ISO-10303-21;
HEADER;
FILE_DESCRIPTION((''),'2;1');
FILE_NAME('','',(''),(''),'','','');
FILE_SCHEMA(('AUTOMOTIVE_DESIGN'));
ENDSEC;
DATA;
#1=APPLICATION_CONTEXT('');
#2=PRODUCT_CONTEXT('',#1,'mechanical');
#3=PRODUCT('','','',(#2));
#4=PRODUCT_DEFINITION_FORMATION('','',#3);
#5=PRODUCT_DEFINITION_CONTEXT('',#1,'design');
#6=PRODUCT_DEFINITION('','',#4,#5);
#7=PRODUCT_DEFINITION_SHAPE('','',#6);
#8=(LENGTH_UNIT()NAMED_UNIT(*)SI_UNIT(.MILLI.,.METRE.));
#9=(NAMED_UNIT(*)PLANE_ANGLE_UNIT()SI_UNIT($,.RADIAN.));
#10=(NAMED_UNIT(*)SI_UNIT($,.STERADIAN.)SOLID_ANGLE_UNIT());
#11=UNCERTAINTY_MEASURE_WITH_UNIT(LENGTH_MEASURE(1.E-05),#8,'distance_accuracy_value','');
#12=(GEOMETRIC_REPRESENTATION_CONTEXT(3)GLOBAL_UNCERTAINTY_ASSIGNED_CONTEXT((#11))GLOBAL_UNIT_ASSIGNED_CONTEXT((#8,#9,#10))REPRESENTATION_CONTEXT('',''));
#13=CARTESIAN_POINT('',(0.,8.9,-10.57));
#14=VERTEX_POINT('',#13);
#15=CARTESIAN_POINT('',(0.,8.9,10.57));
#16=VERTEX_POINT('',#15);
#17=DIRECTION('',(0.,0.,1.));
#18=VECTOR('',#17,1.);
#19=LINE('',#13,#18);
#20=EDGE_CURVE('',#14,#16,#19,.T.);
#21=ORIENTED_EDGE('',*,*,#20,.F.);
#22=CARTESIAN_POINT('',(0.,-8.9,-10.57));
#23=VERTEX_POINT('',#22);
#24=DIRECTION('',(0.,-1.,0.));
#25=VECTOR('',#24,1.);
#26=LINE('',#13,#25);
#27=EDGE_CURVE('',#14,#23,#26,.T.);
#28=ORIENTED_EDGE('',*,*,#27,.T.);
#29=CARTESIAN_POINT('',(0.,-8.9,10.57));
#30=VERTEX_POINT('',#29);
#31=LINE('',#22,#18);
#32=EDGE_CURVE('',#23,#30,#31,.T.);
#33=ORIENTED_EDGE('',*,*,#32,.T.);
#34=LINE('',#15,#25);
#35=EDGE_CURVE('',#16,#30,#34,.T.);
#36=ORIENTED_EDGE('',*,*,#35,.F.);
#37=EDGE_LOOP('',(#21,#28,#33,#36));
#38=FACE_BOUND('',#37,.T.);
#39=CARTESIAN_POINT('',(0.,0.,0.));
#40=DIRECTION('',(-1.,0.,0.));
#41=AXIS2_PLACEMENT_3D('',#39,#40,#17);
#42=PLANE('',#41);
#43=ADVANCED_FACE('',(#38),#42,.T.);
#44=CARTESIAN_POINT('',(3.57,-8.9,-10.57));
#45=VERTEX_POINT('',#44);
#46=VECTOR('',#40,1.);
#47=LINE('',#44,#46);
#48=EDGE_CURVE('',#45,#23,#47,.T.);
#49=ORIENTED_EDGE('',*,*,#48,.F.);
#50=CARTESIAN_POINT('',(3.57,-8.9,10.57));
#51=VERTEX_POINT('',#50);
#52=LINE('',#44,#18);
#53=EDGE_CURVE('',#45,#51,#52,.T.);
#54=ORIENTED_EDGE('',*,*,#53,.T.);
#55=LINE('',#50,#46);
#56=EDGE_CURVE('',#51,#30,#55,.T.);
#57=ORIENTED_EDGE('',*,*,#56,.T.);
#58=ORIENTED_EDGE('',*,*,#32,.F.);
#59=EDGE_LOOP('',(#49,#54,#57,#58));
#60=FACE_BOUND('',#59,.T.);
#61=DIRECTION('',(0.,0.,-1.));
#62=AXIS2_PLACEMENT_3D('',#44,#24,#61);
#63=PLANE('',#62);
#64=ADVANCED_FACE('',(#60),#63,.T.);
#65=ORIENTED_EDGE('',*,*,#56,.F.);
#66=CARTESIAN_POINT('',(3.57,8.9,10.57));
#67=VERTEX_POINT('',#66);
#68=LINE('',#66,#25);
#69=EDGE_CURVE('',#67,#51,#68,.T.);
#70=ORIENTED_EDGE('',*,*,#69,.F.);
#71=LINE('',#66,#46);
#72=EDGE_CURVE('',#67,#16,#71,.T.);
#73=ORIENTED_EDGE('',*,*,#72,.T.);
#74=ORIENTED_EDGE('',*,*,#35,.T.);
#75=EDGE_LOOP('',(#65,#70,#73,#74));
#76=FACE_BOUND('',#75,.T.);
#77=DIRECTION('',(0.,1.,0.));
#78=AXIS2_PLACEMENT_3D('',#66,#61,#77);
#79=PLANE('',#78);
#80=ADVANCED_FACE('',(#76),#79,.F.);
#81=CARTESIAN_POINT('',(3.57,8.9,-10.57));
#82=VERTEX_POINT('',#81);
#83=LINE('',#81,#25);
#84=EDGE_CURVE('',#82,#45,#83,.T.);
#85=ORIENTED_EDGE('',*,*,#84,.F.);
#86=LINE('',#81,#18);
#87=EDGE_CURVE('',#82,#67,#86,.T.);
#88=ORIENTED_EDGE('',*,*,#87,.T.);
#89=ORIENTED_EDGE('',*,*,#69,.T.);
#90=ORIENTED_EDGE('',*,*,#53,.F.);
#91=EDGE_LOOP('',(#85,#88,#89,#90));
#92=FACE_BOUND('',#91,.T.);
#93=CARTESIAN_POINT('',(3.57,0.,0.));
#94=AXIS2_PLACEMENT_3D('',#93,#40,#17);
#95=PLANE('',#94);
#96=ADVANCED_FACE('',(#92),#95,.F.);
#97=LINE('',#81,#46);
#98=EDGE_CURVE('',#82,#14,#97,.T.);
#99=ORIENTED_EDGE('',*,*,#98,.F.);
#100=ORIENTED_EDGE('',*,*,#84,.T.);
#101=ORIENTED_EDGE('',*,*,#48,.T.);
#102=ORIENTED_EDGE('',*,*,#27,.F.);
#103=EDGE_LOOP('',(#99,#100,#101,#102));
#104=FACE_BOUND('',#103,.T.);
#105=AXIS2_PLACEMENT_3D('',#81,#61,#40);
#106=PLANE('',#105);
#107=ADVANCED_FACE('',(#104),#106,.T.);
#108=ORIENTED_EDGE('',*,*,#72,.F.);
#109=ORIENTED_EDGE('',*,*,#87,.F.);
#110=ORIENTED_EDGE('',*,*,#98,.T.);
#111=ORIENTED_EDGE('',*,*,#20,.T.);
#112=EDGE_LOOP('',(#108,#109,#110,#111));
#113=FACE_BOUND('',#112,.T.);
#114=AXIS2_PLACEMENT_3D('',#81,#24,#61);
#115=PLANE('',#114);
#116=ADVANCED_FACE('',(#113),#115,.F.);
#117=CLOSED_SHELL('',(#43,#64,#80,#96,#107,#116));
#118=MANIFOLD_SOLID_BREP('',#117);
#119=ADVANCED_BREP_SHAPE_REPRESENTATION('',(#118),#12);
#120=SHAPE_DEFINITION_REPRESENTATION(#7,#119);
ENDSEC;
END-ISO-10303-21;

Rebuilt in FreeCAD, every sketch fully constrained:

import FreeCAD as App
import Part
import Sketcher
Q = App.Units.Quantity


def add_polygon(sketch, points):
    """Adds a closed chain of lines whose ends are joined by coincident constraints."""
    first, n = sketch.GeometryCount, len(points)
    for a, b in zip(points, points[1:] + points[:1]):
        sketch.addGeometry(Part.LineSegment(App.Vector(*a, 0), App.Vector(*b, 0)), False)
    for i in range(n):
        sketch.addConstraint(Sketcher.Constraint("Coincident", first + i, 2, first + (i + 1) % n, 1))

doc = App.newDocument("Part")
body = doc.addObject("PartDesign::Body", "Body")

# Sketch on YZ plane
sketch1 = doc.addObject("Sketcher::SketchObject", "Sketch")
body.addObject(sketch1)
sketch1.AttachmentSupport = (doc.YZ_Plane, [""])
sketch1.MapMode = "FlatFace"
add_polygon(sketch1, [(-9, 11), (-9, -11), (9, -11), (9, 11)])  # lines 0-3
sketch1.addConstraint([
    Sketcher.Constraint("Vertical", 0),
    Sketcher.Constraint("Horizontal", 1),
    Sketcher.Constraint("Vertical", 2),
    Sketcher.Constraint("Horizontal", 3),
    Sketcher.Constraint("Symmetric", 0, 2, 2, 2, -1, 1),
    Sketcher.Constraint("DistanceX", 1, 1, 1, 2, Q("17.8 mm")),
    Sketcher.Constraint("DistanceY", 0, 2, 0, 1, Q("21.14 mm")),
])
pad1 = doc.addObject("PartDesign::Pad", "Pad")
body.addObject(pad1)
pad1.Profile = sketch1
pad1.Length = 3.57

doc.recompute()
